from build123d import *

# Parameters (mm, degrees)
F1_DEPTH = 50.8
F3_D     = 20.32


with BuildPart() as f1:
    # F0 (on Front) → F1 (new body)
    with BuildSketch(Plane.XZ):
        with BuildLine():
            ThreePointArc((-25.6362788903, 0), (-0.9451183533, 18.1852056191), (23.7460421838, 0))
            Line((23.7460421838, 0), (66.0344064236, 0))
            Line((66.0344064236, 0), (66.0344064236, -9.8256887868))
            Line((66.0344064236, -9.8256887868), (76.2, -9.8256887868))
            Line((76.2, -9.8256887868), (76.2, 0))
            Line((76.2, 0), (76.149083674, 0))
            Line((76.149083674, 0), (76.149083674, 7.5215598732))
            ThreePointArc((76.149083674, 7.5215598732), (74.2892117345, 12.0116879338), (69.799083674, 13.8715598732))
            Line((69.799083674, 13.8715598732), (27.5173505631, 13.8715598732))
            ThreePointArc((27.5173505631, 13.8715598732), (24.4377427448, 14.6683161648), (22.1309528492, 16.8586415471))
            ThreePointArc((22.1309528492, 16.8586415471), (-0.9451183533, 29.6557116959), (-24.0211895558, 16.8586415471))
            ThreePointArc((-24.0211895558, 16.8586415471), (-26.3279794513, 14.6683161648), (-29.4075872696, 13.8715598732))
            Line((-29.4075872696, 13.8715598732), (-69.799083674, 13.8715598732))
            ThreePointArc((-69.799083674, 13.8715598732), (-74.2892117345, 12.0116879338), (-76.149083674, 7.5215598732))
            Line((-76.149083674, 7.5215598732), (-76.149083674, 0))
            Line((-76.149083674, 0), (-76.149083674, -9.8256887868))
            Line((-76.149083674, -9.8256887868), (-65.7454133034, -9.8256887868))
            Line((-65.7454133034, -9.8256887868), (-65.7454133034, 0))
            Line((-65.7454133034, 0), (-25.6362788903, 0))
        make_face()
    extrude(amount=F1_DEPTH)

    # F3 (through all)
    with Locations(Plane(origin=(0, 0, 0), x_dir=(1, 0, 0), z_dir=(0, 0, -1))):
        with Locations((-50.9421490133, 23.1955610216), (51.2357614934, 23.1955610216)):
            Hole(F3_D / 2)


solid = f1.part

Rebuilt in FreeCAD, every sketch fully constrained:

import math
import FreeCAD as App
import Part
import Sketcher

V = App.Vector
Q = App.Units.Quantity

doc = App.newDocument("Part")
body = doc.addObject("PartDesign::Body", "Body")

# Sketch on XZ plane
sketch1 = body.newObject("Sketcher::SketchObject", "Sketch")
sketch1.AttachmentSupport = (doc.getObject("XZ_Plane"), [""])
sketch1.MapMode = "FlatFace"
sketch1.addGeometry(Part.ArcOfCircle(Part.Circle(V(-0.945118, -7.669743, 0), V(0, 0, 1), 25.854949), math.radians(17.256209), math.radians(162.743791)), False)
sketch1.addGeometry(Part.LineSegment(V(23.746042, 0, 0), V(66.034406, 0, 0)), False)
sketch1.addGeometry(Part.LineSegment(V(66.034406, 0, 0), V(66.034406, -9.825689, 0)), False)
sketch1.addGeometry(Part.LineSegment(V(66.034406, -9.825689, 0), V(76.2, -9.825689, 0)), False)
sketch1.addGeometry(Part.LineSegment(V(76.2, -9.825689, 0), V(76.2, 0, 0)), False)
sketch1.addGeometry(Part.LineSegment(V(76.2, 0, 0), V(76.149084, 0, 0)), False)
sketch1.addGeometry(Part.LineSegment(V(76.149084, 0, 0), V(76.149084, 7.52156, 0)), False)
sketch1.addGeometry(Part.ArcOfCircle(Part.Circle(V(69.799084, 7.52156, 0), V(0, 0, 1), 6.35), math.radians(0), math.radians(90)), False)
sketch1.addGeometry(Part.LineSegment(V(69.799084, 13.87156, 0), V(27.517351, 13.87156, 0)), False)
sketch1.addGeometry(Part.ArcOfCircle(Part.Circle(V(27.517351, 20.22156, 0), V(0, 0, 1), 6.35), math.radians(-148.022011), math.radians(-90)), False)
sketch1.addGeometry(Part.ArcOfCircle(Part.Circle(V(-0.945118, 2.451435, 0), V(0, 0, 1), 27.204276), math.radians(31.977989), math.radians(148.022011)), False)
sketch1.addGeometry(Part.ArcOfCircle(Part.Circle(V(-29.407587, 20.22156, 0), V(0, 0, 1), 6.35), math.radians(-90), math.radians(-31.977989)), False)
sketch1.addGeometry(Part.LineSegment(V(-29.407587, 13.87156, 0), V(-69.799084, 13.87156, 0)), False)
sketch1.addGeometry(Part.ArcOfCircle(Part.Circle(V(-69.799084, 7.52156, 0), V(0, 0, 1), 6.35), math.radians(90), math.radians(180)), False)
sketch1.addGeometry(Part.LineSegment(V(-76.149084, 7.52156, 0), V(-76.149084, -9.825689, 0)), False)
sketch1.addGeometry(Part.LineSegment(V(-76.149084, -9.825689, 0), V(-65.745413, -9.825689, 0)), False)
sketch1.addGeometry(Part.LineSegment(V(-65.745413, -9.825689, 0), V(-65.745413, 0, 0)), False)
sketch1.addGeometry(Part.LineSegment(V(-65.745413, 0, 0), V(-25.636279, 0, 0)), False)
sketch1.addConstraint(Sketcher.Constraint("Coincident", 0, 1, 1, 1))
sketch1.addConstraint(Sketcher.Constraint("Coincident", 1, 2, 2, 1))
sketch1.addConstraint(Sketcher.Constraint("Coincident", 2, 2, 3, 1))
sketch1.addConstraint(Sketcher.Constraint("Coincident", 3, 2, 4, 1))
sketch1.addConstraint(Sketcher.Constraint("Coincident", 4, 2, 5, 1))
sketch1.addConstraint(Sketcher.Constraint("Coincident", 5, 2, 6, 1))
sketch1.addConstraint(Sketcher.Constraint("Tangent", 6, 2, 7, 1))
sketch1.addConstraint(Sketcher.Constraint("Tangent", 7, 2, 8, 1))
sketch1.addConstraint(Sketcher.Constraint("Tangent", 8, 2, 9, 2))
sketch1.addConstraint(Sketcher.Constraint("Tangent", 9, 1, 10, 1))
sketch1.addConstraint(Sketcher.Constraint("Tangent", 10, 2, 11, 2))
sketch1.addConstraint(Sketcher.Constraint("Tangent", 11, 1, 12, 1))
sketch1.addConstraint(Sketcher.Constraint("Tangent", 12, 2, 13, 1))
sketch1.addConstraint(Sketcher.Constraint("Tangent", 13, 2, 14, 1))
sketch1.addConstraint(Sketcher.Constraint("Coincident", 14, 2, 15, 1))
sketch1.addConstraint(Sketcher.Constraint("Coincident", 15, 2, 16, 1))
sketch1.addConstraint(Sketcher.Constraint("Coincident", 16, 2, 17, 1))
sketch1.addConstraint(Sketcher.Constraint("Coincident", 17, 2, 0, 2))
sketch1.addConstraint(Sketcher.Constraint("Horizontal", 1))
sketch1.addConstraint(Sketcher.Constraint("Vertical", 2))
sketch1.addConstraint(Sketcher.Constraint("Horizontal", 3))
sketch1.addConstraint(Sketcher.Constraint("Vertical", 4))
sketch1.addConstraint(Sketcher.Constraint("Horizontal", 5))
sketch1.addConstraint(Sketcher.Constraint("Vertical", 6))
sketch1.addConstraint(Sketcher.Constraint("Horizontal", 8))
sketch1.addConstraint(Sketcher.Constraint("Horizontal", 12))
sketch1.addConstraint(Sketcher.Constraint("Vertical", 14))
sketch1.addConstraint(Sketcher.Constraint("Horizontal", 15))
sketch1.addConstraint(Sketcher.Constraint("Vertical", 16))
sketch1.addConstraint(Sketcher.Constraint("Horizontal", 17))
sketch1.addConstraint(Sketcher.Constraint("Equal", 7, 9))
sketch1.addConstraint(Sketcher.Constraint("Equal", 9, 11))
sketch1.addConstraint(Sketcher.Constraint("Equal", 11, 13))
sketch1.addConstraint(Sketcher.Constraint("Symmetric", 7, 3, 13, 3, -2))
sketch1.addConstraint(Sketcher.Constraint("PointOnObject", 0, 1, -1))
sketch1.addConstraint(Sketcher.Constraint("PointOnObject", 4, 2, -1))
sketch1.addConstraint(Sketcher.Constraint("PointOnObject", 16, 2, -1))
sketch1.addConstraint(Sketcher.Constraint("Horizontal", 3, 2, 14, 2))
sketch1.addConstraint(Sketcher.Constraint("Vertical", 0, 3, 10, 3))
sketch1.addConstraint(Sketcher.Constraint("Radius", 7, Q("0.25 in")))
sketch1.addConstraint(Sketcher.Constraint("DistanceX", -1, 1, 3, 2, Q("3 in")))
sketch1.addConstraint(Sketcher.Constraint("Radius", 0, 25.854949))
sketch1.addConstraint(Sketcher.Constraint("Radius", 10, 27.204276))
sketch1.addConstraint(Sketcher.Constraint("DistanceX", 15, 1, 15, 2, 10.40367))
sketch1.addConstraint(Sketcher.Constraint("DistanceY", 2, 2, 2, 1, 9.825689))
sketch1.addConstraint(Sketcher.Constraint("DistanceY", 6, 1, 6, 2, 7.52156))
sketch1.addConstraint(Sketcher.Constraint("DistanceX", 1, 1, 1, 2, 42.288364))
sketch1.addConstraint(Sketcher.Constraint("DistanceX", 3, 1, 3, 2, 10.165594))
sketch1.addConstraint(Sketcher.Constraint("DistanceX", 5, 2, 5, 1, 0.050916))
sketch1.addConstraint(Sketcher.Constraint("DistanceX", 8, 2, 8, 1, 42.281733))
sketch1.addConstraint(Sketcher.Constraint("DistanceX", 12, 2, 12, 1, 40.391496))
pad1 = body.newObject("PartDesign::Pad", "Pad")
pad1.Profile = sketch1
pad1.Length = Q("2 in")

# Sketch on XY plane
sketch2 = body.newObject("Sketcher::SketchObject", "Sketch001")
sketch2.AttachmentSupport = (doc.getObject("XY_Plane"), [""])
sketch2.MapMode = "FlatFace"
sketch2.addGeometry(Part.Circle(V(-50.942149, -23.195561, 0), V(0, 0, 1), 10.16), False)
sketch2.addGeometry(Part.Circle(V(51.235761, -23.195561, 0), V(0, 0, 1), 10.16), False)
sketch2.addConstraint(Sketcher.Constraint("Equal", 0, 1))
sketch2.addConstraint(Sketcher.Constraint("Horizontal", 0, 3, 1, 3))
sketch2.addConstraint(Sketcher.Constraint("Diameter", 0, Q("0.8 in")))
sketch2.addConstraint(Sketcher.Constraint("DistanceX", 0, 3, -1, 1, 50.942149))
sketch2.addConstraint(Sketcher.Constraint("DistanceY", 0, 3, -1, 1, 23.195561))
sketch2.addConstraint(Sketcher.Constraint("DistanceX", -1, 1, 1, 3, 51.235761))
doc.recompute()
hole = body.newObject("PartDesign::Hole", "Hole")
hole.Profile = sketch2
hole.ThreadType = "None"
hole.Diameter = Q("0.8 in")
hole.DepthType = "ThroughAll"
hole.Reversed = True

doc.recompute()
